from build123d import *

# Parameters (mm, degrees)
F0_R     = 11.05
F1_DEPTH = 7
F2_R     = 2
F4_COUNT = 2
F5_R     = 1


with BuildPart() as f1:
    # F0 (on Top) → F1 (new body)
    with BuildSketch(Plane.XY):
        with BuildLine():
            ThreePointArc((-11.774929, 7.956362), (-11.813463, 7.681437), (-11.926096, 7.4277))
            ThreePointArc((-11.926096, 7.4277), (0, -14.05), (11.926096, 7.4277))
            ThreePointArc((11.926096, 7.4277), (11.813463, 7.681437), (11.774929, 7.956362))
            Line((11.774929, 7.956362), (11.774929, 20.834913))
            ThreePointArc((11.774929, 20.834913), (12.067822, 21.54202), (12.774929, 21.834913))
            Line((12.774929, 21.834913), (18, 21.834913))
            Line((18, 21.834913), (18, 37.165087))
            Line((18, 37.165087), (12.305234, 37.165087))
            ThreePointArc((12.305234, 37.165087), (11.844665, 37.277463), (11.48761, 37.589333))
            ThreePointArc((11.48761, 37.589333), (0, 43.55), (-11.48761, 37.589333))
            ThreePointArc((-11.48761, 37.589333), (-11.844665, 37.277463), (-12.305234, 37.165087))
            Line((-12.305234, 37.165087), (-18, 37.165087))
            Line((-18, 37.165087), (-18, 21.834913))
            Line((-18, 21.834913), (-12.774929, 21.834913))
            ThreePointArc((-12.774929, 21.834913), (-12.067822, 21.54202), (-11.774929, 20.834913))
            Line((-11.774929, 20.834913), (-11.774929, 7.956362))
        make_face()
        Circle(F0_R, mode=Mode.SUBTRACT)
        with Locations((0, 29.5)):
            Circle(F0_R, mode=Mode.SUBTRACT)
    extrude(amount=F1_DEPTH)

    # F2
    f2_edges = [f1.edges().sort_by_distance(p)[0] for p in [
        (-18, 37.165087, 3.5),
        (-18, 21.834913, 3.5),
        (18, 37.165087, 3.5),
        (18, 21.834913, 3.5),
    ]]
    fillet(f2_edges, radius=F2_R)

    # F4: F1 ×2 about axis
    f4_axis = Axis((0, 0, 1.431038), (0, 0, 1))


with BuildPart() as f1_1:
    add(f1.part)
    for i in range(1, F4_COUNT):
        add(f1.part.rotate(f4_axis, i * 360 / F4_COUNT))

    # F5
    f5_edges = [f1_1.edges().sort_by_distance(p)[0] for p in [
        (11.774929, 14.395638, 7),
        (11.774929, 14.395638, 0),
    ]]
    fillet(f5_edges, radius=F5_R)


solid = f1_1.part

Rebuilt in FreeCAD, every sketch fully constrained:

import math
import FreeCAD as App
import Part
import Sketcher
Q = App.Units.Quantity


def edges_at(feature, points):
    """Names of the edges that pass closest to the given points."""
    edges = feature.Shape.Edges
    near = lambda p: min(range(len(edges)), key=lambda i: edges[i].distToShape(Part.Vertex(*p))[0])
    return sorted({f"Edge{near(p) + 1}" for p in points})

doc = App.newDocument("Part")
body = doc.addObject("PartDesign::Body", "Body")

sketch1 = doc.addObject("Sketcher::SketchObject", "Sketch")
body.addObject(sketch1)
sketch1.AttachmentSupport = (doc.XY_Plane, [""])
sketch1.MapMode = "FlatFace"
sketch1.addGeometry([
    Part.ArcOfCircle(Part.Circle(App.Vector(-12.8, 8, 0), App.Vector(0, 0, 1), 1), math.radians(-32), math.radians(0)),
    Part.ArcOfCircle(Part.Circle(App.Vector(0, 0, 0), App.Vector(0, 0, 1), 14), math.radians(148), math.radians(392)),
    Part.ArcOfCircle(Part.Circle(App.Vector(12.8, 8, 0), App.Vector(0, 0, 1), 1), math.radians(180), math.radians(212)),
    Part.LineSegment(App.Vector(11.8, 8, 0), App.Vector(11.8, 20.8, 0)),
    Part.ArcOfCircle(Part.Circle(App.Vector(12.8, 20.8, 0), App.Vector(0, 0, 1), 1), math.radians(90), math.radians(180)),
    Part.LineSegment(App.Vector(12.8, 21.8, 0), App.Vector(18, 21.8, 0)),
    Part.LineSegment(App.Vector(18, 21.8, 0), App.Vector(18, 37.2, 0)),
    Part.LineSegment(App.Vector(18, 37.2, 0), App.Vector(12.3, 37.2, 0)),
    Part.ArcOfCircle(Part.Circle(App.Vector(12.3, 38.2, 0), App.Vector(0, 0, 1), 1), math.radians(-145), math.radians(-90)),
    Part.ArcOfCircle(Part.Circle(App.Vector(0, 29.5, 0), App.Vector(0, 0, 1), 14), math.radians(35), math.radians(145)),
    Part.ArcOfCircle(Part.Circle(App.Vector(-12.3, 38.2, 0), App.Vector(0, 0, 1), 1), math.radians(-90), math.radians(-35)),
    Part.LineSegment(App.Vector(-12.3, 37.2, 0), App.Vector(-18, 37.2, 0)),
    Part.LineSegment(App.Vector(-18, 37.2, 0), App.Vector(-18, 21.8, 0)),
    Part.LineSegment(App.Vector(-18, 21.8, 0), App.Vector(-12.8, 21.8, 0)),
    Part.ArcOfCircle(Part.Circle(App.Vector(-12.8, 20.8, 0), App.Vector(0, 0, 1), 1), math.radians(0), math.radians(90)),
    Part.LineSegment(App.Vector(-11.8, 20.8, 0), App.Vector(-11.8, 8, 0)),
    Part.Circle(App.Vector(0, 0, 0), App.Vector(0, 0, 1), 11.1),
    Part.Circle(App.Vector(0, 29.5, 0), App.Vector(0, 0, 1), 11.1),
], False)
sketch1.addConstraint([
    Sketcher.Constraint("Tangent", 0, 1, 1, 1),
    Sketcher.Constraint("Tangent", 1, 2, 2, 2),
    Sketcher.Constraint("Tangent", 2, 1, 3, 1),
    Sketcher.Constraint("Tangent", 3, 2, 4, 2),
    Sketcher.Constraint("Tangent", 4, 1, 5, 1),
    Sketcher.Constraint("Coincident", 5, 2, 6, 1),
    Sketcher.Constraint("Coincident", 6, 2, 7, 1),
    Sketcher.Constraint("Tangent", 7, 2, 8, 2),
    Sketcher.Constraint("Coincident", 8, 1, 9, 1),
    Sketcher.Constraint("Coincident", 9, 2, 10, 2),
    Sketcher.Constraint("Tangent", 10, 1, 11, 1),
    Sketcher.Constraint("Coincident", 11, 2, 12, 1),
    Sketcher.Constraint("Coincident", 12, 2, 13, 1),
    Sketcher.Constraint("Tangent", 13, 2, 14, 2),
    Sketcher.Constraint("Tangent", 14, 1, 15, 1),
    Sketcher.Constraint("Tangent", 15, 2, 0, 2),
    Sketcher.Constraint("Vertical", 3),
    Sketcher.Constraint("Horizontal", 5),
    Sketcher.Constraint("Vertical", 6),
    Sketcher.Constraint("Horizontal", 7),
    Sketcher.Constraint("Horizontal", 11),
    Sketcher.Constraint("Vertical", 12),
    Sketcher.Constraint("Horizontal", 13),
    Sketcher.Constraint("Vertical", 15),
    Sketcher.Constraint("Coincident", 1, 3, -1, 1),
    Sketcher.Constraint("Coincident", 16, 3, -1, 1),
    Sketcher.Constraint("Coincident", 17, 3, 9, 3),
    Sketcher.Constraint("Equal", 0, 2),
    Sketcher.Constraint("Equal", 2, 4),
    Sketcher.Constraint("Equal", 1, 9),
    Sketcher.Constraint("Equal", 8, 10),
    Sketcher.Constraint("Equal", 4, 14),
    Sketcher.Constraint("Equal", 16, 17),
    Sketcher.Constraint("Symmetric", 8, 3, 10, 3, -2),
    Sketcher.Constraint("Symmetric", 4, 3, 14, 3, -2),
    Sketcher.Constraint("Horizontal", 8, 1, 9, 2),
    Sketcher.Constraint("Equal", 7, 11),
    Sketcher.Constraint("Radius", 0, Q("0.999999 mm")),
    Sketcher.Constraint("Diameter", 16, Q("22.1 mm")),
    Sketcher.Constraint("Radius", 1, Q("14.05 mm")),
    Sketcher.Constraint("DistanceX", -1, 1, 5, 2, Q("18 mm")),
    Sketcher.Constraint("DistanceY", -1, 1, 9, 3, Q("29.500001 mm")),
    Sketcher.Constraint("Radius", 8, Q("1.000003 mm")),
    Sketcher.Constraint("DistanceX", 5, 1, 5, 2, Q("5.225071 mm")),
    Sketcher.Constraint("DistanceY", 3, 1, 3, 2, Q("12.878551 mm")),
    Sketcher.Constraint("DistanceX", 7, 2, 7, 1, Q("5.694766 mm")),
    Sketcher.Constraint("DistanceX", -1, 1, 8, 1, Q("11.48761 mm")),
])
pad1 = doc.addObject("PartDesign::Pad", "Pad")
body.addObject(pad1)
pad1.Profile = sketch1
pad1.Length = 7
doc.recompute()

fillet = doc.addObject("PartDesign::Fillet", "Fillet")
body.addObject(fillet)
fillet.Base = (pad1, edges_at(pad1, [
    (-18, 37.165, 3.5),
    (-18, 21.835, 3.5),
    (18, 37.165, 3.5),
    (18, 21.835, 3.5),
]))
fillet.Radius = 2
body2 = doc.addObject("PartDesign::Body", "Body001")
doc.recompute()

body2.BaseFeature = body
doc.recompute()

body.Placement = App.Placement(App.Vector(0, 0, 0), App.Rotation(App.Vector(0, 0, 1), 180))
boolean = doc.addObject("PartDesign::Boolean", "Boolean")
body2.addObject(boolean)
boolean.Type = "Fuse"
boolean.addObjects([body])
doc.recompute()

fillet2 = doc.addObject("PartDesign::Fillet", "Fillet001")
body2.addObject(fillet2)
fillet2.Base = (boolean, edges_at(boolean, [(11.775, 14.396, 7), (11.775, 14.396, 0)]))
fillet2.Radius = 1

doc.recompute()
